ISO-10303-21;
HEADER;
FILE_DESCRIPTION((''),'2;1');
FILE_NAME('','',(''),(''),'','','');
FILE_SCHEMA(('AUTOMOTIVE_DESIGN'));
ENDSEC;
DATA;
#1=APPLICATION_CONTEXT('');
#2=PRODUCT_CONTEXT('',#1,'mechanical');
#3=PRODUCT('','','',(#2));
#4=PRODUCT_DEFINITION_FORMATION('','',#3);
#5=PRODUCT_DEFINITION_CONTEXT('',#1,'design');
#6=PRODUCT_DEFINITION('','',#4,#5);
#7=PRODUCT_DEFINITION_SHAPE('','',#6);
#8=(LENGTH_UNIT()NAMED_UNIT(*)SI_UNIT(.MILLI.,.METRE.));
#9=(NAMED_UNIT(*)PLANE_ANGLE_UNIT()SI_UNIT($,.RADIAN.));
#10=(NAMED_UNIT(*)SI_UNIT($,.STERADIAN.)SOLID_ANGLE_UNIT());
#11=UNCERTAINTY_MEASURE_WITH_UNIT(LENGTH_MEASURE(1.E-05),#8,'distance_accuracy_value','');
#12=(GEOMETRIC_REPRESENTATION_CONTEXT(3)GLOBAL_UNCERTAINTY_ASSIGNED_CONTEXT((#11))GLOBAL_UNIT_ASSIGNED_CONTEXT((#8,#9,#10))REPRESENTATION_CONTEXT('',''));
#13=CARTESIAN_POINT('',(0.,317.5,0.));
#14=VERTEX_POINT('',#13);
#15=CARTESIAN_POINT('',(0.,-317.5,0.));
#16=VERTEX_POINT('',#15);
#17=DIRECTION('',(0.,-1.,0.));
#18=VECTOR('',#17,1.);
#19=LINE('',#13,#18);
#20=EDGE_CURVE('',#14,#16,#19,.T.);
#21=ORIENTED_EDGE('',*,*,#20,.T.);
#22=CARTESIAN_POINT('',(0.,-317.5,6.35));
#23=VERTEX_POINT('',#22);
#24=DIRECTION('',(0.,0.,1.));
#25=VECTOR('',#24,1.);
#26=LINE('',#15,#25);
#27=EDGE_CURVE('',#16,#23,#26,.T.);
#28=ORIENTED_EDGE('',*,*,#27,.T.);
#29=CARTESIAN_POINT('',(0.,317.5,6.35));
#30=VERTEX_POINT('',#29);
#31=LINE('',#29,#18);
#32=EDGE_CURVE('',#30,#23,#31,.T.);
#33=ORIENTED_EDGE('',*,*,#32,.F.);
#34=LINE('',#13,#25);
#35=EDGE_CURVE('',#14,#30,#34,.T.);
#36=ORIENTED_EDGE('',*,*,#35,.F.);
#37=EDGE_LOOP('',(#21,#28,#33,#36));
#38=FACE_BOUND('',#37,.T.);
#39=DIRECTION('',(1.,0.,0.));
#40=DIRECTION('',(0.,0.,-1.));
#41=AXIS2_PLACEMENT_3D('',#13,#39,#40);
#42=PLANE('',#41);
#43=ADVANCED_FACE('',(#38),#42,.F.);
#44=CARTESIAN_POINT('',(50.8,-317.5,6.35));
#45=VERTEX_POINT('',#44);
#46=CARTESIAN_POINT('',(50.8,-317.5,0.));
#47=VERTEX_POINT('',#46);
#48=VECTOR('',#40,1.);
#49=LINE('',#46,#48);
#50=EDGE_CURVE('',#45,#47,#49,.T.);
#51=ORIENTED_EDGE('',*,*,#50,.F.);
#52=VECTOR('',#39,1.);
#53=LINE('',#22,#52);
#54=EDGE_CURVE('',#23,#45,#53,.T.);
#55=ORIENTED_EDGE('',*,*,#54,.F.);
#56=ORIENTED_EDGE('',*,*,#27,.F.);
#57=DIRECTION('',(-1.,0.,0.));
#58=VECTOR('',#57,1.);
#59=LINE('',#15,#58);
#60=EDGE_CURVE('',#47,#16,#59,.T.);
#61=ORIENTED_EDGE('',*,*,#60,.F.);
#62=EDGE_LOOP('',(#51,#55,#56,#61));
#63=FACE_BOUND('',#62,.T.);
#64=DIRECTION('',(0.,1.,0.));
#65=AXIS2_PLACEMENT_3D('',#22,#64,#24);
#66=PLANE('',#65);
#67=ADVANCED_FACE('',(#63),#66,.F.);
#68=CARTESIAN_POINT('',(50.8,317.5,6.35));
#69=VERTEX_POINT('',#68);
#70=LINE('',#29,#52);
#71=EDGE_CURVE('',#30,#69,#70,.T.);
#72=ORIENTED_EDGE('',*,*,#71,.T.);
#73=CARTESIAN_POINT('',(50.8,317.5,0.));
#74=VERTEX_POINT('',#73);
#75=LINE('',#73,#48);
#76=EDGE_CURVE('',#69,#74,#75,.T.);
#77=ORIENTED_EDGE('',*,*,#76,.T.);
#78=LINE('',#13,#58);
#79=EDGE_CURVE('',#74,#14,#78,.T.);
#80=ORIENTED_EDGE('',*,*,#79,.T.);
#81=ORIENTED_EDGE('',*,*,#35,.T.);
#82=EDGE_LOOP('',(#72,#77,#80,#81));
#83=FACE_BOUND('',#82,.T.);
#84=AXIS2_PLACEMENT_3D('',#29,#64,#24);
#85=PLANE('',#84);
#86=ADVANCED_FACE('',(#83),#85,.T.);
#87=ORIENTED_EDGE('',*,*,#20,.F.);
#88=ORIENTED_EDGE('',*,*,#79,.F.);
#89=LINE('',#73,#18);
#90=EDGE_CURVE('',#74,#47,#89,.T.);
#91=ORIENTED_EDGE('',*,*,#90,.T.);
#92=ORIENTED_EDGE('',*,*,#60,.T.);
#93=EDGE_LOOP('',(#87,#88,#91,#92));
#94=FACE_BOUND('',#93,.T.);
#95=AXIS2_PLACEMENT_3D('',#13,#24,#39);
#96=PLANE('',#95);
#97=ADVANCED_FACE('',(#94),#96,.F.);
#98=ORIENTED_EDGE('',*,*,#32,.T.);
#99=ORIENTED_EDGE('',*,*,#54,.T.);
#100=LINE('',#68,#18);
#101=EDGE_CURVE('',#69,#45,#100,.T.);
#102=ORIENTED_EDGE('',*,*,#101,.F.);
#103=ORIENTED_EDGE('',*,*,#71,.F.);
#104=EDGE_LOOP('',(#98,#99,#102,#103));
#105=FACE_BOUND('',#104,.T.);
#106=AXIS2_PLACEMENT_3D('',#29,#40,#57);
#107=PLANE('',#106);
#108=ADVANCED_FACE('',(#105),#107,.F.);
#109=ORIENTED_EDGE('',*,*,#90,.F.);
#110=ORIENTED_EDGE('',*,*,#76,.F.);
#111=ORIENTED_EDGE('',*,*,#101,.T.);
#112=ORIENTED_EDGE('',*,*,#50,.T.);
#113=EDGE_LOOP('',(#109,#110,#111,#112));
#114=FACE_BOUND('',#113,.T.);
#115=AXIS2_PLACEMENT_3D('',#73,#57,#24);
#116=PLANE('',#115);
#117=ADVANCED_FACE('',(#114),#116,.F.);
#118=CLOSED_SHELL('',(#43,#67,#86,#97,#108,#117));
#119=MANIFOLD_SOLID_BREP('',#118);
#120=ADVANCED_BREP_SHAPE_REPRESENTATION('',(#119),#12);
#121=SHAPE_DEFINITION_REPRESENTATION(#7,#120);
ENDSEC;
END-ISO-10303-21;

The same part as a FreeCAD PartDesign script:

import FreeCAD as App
import Part
import Sketcher
Q = App.Units.Quantity


def add_polygon(sketch, points):
    """Adds a closed chain of lines whose ends are joined by coincident constraints."""
    first, n = sketch.GeometryCount, len(points)
    for a, b in zip(points, points[1:] + points[:1]):
        sketch.addGeometry(Part.LineSegment(App.Vector(*a, 0), App.Vector(*b, 0)), False)
    for i in range(n):
        sketch.addConstraint(Sketcher.Constraint("Coincident", first + i, 2, first + (i + 1) % n, 1))

doc = App.newDocument("Part")
body = doc.addObject("PartDesign::Body", "Body")

# Sketch on XZ plane
sketch1 = body.newObject("Sketcher::SketchObject", "Sketch")
sketch1.AttachmentSupport = (doc.getObject("XZ_Plane"), [""])
sketch1.MapMode = "FlatFace"
add_polygon(sketch1, [(0, 0), (0, 6), (51, 6), (51, 0)])  # lines 0-3
sketch1.addConstraint([
    Sketcher.Constraint("Vertical", 0),
    Sketcher.Constraint("Horizontal", 1),
    Sketcher.Constraint("Vertical", 2),
    Sketcher.Constraint("Horizontal", 3),
    Sketcher.Constraint("Coincident", 3, 2, -1, 1),
    Sketcher.Constraint("DistanceX", 1, 1, 1, 2, Q("2 in")),
    Sketcher.Constraint("DistanceY", 0, 1, 0, 2, Q("0.25 in")),
])
pad1 = body.newObject("PartDesign::Pad", "Pad")
pad1.Profile = sketch1
pad1.Length = Q("25 in")
pad1.Midplane = True

doc.recompute()
